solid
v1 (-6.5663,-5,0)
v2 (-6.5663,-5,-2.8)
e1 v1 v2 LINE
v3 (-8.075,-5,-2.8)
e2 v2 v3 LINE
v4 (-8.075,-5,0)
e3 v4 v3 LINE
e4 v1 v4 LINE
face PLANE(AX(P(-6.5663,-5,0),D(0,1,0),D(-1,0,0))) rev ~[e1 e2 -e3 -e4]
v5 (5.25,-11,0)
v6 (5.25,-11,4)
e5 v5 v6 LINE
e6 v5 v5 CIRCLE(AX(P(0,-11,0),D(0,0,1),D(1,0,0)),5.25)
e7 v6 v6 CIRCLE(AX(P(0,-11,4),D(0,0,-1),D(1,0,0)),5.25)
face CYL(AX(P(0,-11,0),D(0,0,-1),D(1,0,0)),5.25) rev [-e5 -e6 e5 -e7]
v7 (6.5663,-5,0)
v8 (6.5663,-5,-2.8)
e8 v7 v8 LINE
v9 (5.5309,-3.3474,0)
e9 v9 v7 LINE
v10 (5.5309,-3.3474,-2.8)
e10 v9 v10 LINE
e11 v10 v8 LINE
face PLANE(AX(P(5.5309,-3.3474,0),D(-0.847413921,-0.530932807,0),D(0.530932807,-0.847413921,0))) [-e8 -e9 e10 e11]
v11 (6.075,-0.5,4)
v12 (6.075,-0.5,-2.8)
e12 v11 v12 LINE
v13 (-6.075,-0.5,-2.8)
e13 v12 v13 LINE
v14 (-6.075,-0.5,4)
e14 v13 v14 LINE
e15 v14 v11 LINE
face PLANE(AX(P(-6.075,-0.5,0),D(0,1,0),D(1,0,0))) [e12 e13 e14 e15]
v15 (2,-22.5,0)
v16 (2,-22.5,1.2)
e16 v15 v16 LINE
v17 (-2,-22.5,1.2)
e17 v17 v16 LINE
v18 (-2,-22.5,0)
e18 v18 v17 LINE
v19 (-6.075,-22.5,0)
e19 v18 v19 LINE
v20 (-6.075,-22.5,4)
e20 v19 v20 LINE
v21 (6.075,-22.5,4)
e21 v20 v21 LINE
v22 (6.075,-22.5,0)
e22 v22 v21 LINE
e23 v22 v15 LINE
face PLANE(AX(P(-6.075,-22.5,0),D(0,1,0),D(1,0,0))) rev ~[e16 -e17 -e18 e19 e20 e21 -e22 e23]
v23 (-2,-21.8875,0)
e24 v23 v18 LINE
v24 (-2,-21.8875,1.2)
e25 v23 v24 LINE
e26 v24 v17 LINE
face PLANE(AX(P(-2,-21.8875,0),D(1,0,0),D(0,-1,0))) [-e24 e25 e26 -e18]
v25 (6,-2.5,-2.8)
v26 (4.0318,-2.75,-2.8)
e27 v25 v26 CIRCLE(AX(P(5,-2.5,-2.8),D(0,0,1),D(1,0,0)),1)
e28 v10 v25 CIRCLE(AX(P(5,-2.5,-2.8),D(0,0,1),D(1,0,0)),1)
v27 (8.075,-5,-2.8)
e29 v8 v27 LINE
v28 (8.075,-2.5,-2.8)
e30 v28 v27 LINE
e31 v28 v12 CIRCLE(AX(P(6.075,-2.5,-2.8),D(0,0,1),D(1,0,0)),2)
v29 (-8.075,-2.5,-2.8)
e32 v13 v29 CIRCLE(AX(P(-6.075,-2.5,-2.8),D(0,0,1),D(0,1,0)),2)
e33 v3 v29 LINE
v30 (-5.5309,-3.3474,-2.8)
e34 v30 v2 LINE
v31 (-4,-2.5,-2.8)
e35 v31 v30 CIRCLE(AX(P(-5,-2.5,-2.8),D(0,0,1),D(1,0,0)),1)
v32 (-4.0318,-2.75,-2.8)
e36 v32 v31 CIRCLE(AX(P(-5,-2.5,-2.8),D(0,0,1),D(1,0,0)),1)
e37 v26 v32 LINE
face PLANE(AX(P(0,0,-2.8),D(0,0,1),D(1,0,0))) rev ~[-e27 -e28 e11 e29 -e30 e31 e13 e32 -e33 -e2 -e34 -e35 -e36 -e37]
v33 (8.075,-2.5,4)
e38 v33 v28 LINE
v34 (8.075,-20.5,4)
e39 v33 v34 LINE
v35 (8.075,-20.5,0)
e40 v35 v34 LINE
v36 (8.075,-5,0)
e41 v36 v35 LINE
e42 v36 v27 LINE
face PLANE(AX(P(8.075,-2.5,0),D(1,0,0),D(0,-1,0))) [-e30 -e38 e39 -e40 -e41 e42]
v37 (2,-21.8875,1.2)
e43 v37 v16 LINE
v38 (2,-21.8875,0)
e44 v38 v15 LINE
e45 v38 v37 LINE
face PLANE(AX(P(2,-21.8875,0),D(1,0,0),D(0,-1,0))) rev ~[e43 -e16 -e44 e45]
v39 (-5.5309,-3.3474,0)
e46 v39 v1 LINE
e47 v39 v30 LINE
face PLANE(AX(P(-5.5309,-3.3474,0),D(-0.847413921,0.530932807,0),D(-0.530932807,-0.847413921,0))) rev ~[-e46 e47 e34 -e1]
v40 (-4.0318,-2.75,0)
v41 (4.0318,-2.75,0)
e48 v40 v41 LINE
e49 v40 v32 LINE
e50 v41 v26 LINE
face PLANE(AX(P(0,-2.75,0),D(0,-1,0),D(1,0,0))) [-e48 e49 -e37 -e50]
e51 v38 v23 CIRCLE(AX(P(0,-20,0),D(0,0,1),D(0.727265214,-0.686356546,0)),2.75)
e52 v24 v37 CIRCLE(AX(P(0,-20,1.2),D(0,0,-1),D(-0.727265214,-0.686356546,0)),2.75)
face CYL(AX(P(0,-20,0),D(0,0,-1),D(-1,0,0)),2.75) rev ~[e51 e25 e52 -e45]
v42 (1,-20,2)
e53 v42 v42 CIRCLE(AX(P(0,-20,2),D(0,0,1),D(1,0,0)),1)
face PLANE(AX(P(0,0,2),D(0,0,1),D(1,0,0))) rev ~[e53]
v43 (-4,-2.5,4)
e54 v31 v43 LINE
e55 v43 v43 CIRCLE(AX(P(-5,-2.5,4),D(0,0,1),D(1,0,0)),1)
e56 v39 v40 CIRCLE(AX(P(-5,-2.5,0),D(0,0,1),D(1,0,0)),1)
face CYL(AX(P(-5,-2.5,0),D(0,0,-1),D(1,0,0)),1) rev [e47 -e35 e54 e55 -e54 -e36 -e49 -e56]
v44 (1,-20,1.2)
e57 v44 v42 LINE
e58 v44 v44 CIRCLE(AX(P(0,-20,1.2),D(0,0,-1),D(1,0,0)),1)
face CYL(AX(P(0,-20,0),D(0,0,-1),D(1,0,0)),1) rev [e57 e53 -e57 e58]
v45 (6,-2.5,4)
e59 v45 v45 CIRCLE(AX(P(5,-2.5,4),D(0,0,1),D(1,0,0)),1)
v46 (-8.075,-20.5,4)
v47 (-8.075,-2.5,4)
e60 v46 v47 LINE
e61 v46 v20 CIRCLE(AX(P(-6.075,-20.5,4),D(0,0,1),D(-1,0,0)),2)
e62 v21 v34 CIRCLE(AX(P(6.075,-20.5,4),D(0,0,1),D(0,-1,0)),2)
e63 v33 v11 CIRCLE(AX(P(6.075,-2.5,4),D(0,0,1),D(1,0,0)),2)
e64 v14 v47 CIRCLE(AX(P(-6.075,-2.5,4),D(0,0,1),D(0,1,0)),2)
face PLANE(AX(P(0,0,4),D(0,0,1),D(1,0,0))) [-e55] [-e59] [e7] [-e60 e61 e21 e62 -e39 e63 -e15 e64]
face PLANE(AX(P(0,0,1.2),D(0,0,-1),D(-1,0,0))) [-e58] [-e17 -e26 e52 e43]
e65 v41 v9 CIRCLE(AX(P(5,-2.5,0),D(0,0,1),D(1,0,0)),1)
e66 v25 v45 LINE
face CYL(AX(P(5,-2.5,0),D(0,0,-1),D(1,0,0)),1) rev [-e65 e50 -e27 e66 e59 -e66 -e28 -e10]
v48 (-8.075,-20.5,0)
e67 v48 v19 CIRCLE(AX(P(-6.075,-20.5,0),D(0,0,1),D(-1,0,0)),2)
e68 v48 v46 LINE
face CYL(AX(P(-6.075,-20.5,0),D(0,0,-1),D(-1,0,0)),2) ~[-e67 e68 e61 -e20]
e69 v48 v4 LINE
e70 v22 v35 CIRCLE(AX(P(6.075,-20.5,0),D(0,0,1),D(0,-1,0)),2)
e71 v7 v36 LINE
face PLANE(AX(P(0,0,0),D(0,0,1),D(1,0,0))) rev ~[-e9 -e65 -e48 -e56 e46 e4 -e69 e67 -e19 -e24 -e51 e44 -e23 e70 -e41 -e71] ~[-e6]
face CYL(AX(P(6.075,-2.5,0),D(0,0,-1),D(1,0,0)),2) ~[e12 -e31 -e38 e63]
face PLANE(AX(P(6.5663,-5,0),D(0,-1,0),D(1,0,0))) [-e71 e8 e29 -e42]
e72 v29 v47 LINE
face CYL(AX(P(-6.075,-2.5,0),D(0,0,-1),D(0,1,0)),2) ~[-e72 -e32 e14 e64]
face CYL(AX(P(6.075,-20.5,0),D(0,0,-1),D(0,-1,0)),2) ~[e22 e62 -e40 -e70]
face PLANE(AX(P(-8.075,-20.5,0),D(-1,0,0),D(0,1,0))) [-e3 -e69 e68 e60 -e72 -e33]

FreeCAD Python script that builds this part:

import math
import FreeCAD as App
import Part
import Sketcher
Q = App.Units.Quantity

doc = App.newDocument("Part")
body = doc.addObject("PartDesign::Body", "Body")

# Sketch on XY plane
sketch1 = body.newObject("Sketcher::SketchObject", "Sketch")
sketch1.AttachmentSupport = (doc.getObject("XY_Plane"), [""])
sketch1.MapMode = "FlatFace"
sketch1.addGeometry(Part.ArcOfCircle(Part.Circle(App.Vector(-6.1, -2.5, 0), App.Vector(0, 0, 1), 2), math.radians(90), math.radians(180)), False)
sketch1.addGeometry(Part.LineSegment(App.Vector(-8.1, -2.5, 0), App.Vector(-8.1, -20.5, 0)), False)
sketch1.addGeometry(Part.ArcOfCircle(Part.Circle(App.Vector(-6.1, -20.5, 0), App.Vector(0, 0, 1), 2), math.radians(180), math.radians(270)), False)
sketch1.addGeometry(Part.LineSegment(App.Vector(-6.1, -22.5, 0), App.Vector(6.1, -22.5, 0)), False)
sketch1.addGeometry(Part.ArcOfCircle(Part.Circle(App.Vector(6.1, -20.5, 0), App.Vector(0, 0, 1), 2), math.radians(-90), math.radians(0)), False)
sketch1.addGeometry(Part.LineSegment(App.Vector(8.1, -20.5, 0), App.Vector(8.1, -2.5, 0)), False)
sketch1.addGeometry(Part.ArcOfCircle(Part.Circle(App.Vector(6.1, -2.5, 0), App.Vector(0, 0, 1), 2), math.radians(0), math.radians(90)), False)
sketch1.addGeometry(Part.LineSegment(App.Vector(6.1, -0.5, 0), App.Vector(-6.1, -0.5, 0)), False)
sketch1.addGeometry(Part.Circle(App.Vector(0, -11, 0), App.Vector(0, 0, 1), 5.2), False)
sketch1.addGeometry(Part.Circle(App.Vector(-5, -2.5, 0), App.Vector(0, 0, 1), 1), False)
sketch1.addGeometry(Part.Circle(App.Vector(5, -2.5, 0), App.Vector(0, 0, 1), 1), False)
sketch1.addGeometry(Part.Circle(App.Vector(0, -20, 0), App.Vector(0, 0, 1), 1), False)
sketch1.addConstraint(Sketcher.Constraint("Tangent", 0, 2, 1, 1))
sketch1.addConstraint(Sketcher.Constraint("Tangent", 1, 2, 2, 1))
sketch1.addConstraint(Sketcher.Constraint("Tangent", 2, 2, 3, 1))
sketch1.addConstraint(Sketcher.Constraint("Tangent", 3, 2, 4, 1))
sketch1.addConstraint(Sketcher.Constraint("Tangent", 4, 2, 5, 1))
sketch1.addConstraint(Sketcher.Constraint("Tangent", 5, 2, 6, 1))
sketch1.addConstraint(Sketcher.Constraint("Tangent", 6, 2, 7, 1))
sketch1.addConstraint(Sketcher.Constraint("Tangent", 7, 2, 0, 1))
sketch1.addConstraint(Sketcher.Constraint("Vertical", 1))
sketch1.addConstraint(Sketcher.Constraint("Horizontal", 3))
sketch1.addConstraint(Sketcher.Constraint("Vertical", 5))
sketch1.addConstraint(Sketcher.Constraint("Horizontal", 7))
sketch1.addConstraint(Sketcher.Constraint("Equal", 0, 2))
sketch1.addConstraint(Sketcher.Constraint("Equal", 2, 4))
sketch1.addConstraint(Sketcher.Constraint("Equal", 4, 6))
sketch1.addConstraint(Sketcher.Constraint("Equal", 9, 10))
sketch1.addConstraint(Sketcher.Constraint("Equal", 10, 11))
sketch1.addConstraint(Sketcher.Constraint("Symmetric", 9, 3, 10, 3, -2))
sketch1.addConstraint(Sketcher.Constraint("PointOnObject", 8, 3, -2))
sketch1.addConstraint(Sketcher.Constraint("PointOnObject", 11, 3, -2))
sketch1.addConstraint(Sketcher.Constraint("Horizontal", 6, 3, 9, 3))
sketch1.addConstraint(Sketcher.Constraint("Radius", 0, Q("2 mm")))
sketch1.addConstraint(Sketcher.Constraint("Diameter", 8, Q("10.5 mm")))
sketch1.addConstraint(Sketcher.Constraint("Diameter", 9, Q("2 mm")))
sketch1.addConstraint(Sketcher.Constraint("DistanceY", 8, 3, 6, 2, Q("10.5 mm")))
sketch1.addConstraint(Sketcher.Constraint("DistanceY", 1, 2, 1, 1, Q("18 mm")))
sketch1.addConstraint(Sketcher.Constraint("DistanceY", 8, 3, -1, 1, Q("11 mm")))
sketch1.addConstraint(Sketcher.Constraint("DistanceX", 9, 3, -1, 1, Q("5 mm")))
sketch1.addConstraint(Sketcher.Constraint("DistanceY", 11, 3, -1, 1, Q("20 mm")))
sketch1.addConstraint(Sketcher.Constraint("DistanceX", 3, 1, 3, 2, Q("12.15 mm")))
sketch1.addConstraint(Sketcher.Constraint("DistanceX", 0, 3, -1, 1, Q("6.075 mm")))
pad1 = body.newObject("PartDesign::Pad", "Pad")
pad1.Profile = sketch1
pad1.Length = 4

# Sketch on XY plane
sketch2 = body.newObject("Sketcher::SketchObject", "Sketch001")
sketch2.AttachmentSupport = (doc.getObject("XY_Plane"), [""])
sketch2.MapMode = "FlatFace"
sketch2.addGeometry(Part.ArcOfCircle(Part.Circle(App.Vector(-6.1, -2.5, 0), App.Vector(0, 0, 1), 2), math.radians(90), math.radians(180)), False)
sketch2.addGeometry(Part.LineSegment(App.Vector(-8.1, -2.5, 0), App.Vector(-8.1, -5, 0)), False)
sketch2.addGeometry(Part.LineSegment(App.Vector(-8.1, -5, 0), App.Vector(-6.6, -5, 0)), False)
sketch2.addGeometry(Part.LineSegment(App.Vector(-6.6, -5, 0), App.Vector(-5.5, -3.3, 0)), False)
sketch2.addGeometry(Part.ArcOfCircle(Part.Circle(App.Vector(-5, -2.5, 0), App.Vector(0, 0, 1), 1), math.radians(-14), math.radians(238)), False)
sketch2.addGeometry(Part.LineSegment(App.Vector(-4, -2.8, 0), App.Vector(4, -2.8, 0)), False)
sketch2.addGeometry(Part.ArcOfCircle(Part.Circle(App.Vector(5, -2.5, 0), App.Vector(0, 0, 1), 1), math.radians(-58), math.radians(194)), False)
sketch2.addGeometry(Part.LineSegment(App.Vector(5.5, -3.3, 0), App.Vector(6.6, -5, 0)), False)
sketch2.addGeometry(Part.LineSegment(App.Vector(6.6, -5, 0), App.Vector(8.1, -5, 0)), False)
sketch2.addGeometry(Part.LineSegment(App.Vector(8.1, -5, 0), App.Vector(8.1, -2.5, 0)), False)
sketch2.addGeometry(Part.ArcOfCircle(Part.Circle(App.Vector(6.1, -2.5, 0), App.Vector(0, 0, 1), 2), math.radians(0), math.radians(90)), False)
sketch2.addGeometry(Part.LineSegment(App.Vector(6.1, -0.5, 0), App.Vector(-6.1, -0.5, 0)), False)
sketch2.addConstraint(Sketcher.Constraint("Tangent", 0, 2, 1, 1))
sketch2.addConstraint(Sketcher.Constraint("Coincident", 1, 2, 2, 1))
sketch2.addConstraint(Sketcher.Constraint("Coincident", 2, 2, 3, 1))
sketch2.addConstraint(Sketcher.Constraint("Coincident", 3, 2, 4, 2))
sketch2.addConstraint(Sketcher.Constraint("Coincident", 4, 1, 5, 1))
sketch2.addConstraint(Sketcher.Constraint("Coincident", 5, 2, 6, 2))
sketch2.addConstraint(Sketcher.Constraint("Coincident", 6, 1, 7, 1))
sketch2.addConstraint(Sketcher.Constraint("Coincident", 7, 2, 8, 1))
sketch2.addConstraint(Sketcher.Constraint("Coincident", 8, 2, 9, 1))
sketch2.addConstraint(Sketcher.Constraint("Tangent", 9, 2, 10, 1))
sketch2.addConstraint(Sketcher.Constraint("Tangent", 10, 2, 11, 1))
sketch2.addConstraint(Sketcher.Constraint("Tangent", 11, 2, 0, 1))
sketch2.addConstraint(Sketcher.Constraint("Vertical", 1))
sketch2.addConstraint(Sketcher.Constraint("Horizontal", 2))
sketch2.addConstraint(Sketcher.Constraint("Horizontal", 5))
sketch2.addConstraint(Sketcher.Constraint("Horizontal", 8))
sketch2.addConstraint(Sketcher.Constraint("Vertical", 9))
sketch2.addConstraint(Sketcher.Constraint("Horizontal", 11))
sketch2.addConstraint(Sketcher.Constraint("Equal", 4, 6))
sketch2.addConstraint(Sketcher.Constraint("Equal", 0, 10))
sketch2.addConstraint(Sketcher.Constraint("Symmetric", 4, 3, 6, 3, -2))
sketch2.addConstraint(Sketcher.Constraint("Symmetric", 2, 2, 7, 2, -2))
sketch2.addConstraint(Sketcher.Constraint("Horizontal", 0, 3, 4, 3))
sketch2.addConstraint(Sketcher.Constraint("Horizontal", 3, 2, 6, 1))
sketch2.addConstraint(Sketcher.Constraint("Equal", 2, 8))
sketch2.addConstraint(Sketcher.Constraint("Radius", 0, Q("2 mm")))
sketch2.addConstraint(Sketcher.Constraint("Radius", 4, Q("1 mm")))
sketch2.addConstraint(Sketcher.Constraint("DistanceY", 10, 2, -1, 1, Q("0.5 mm")))
sketch2.addConstraint(Sketcher.Constraint("DistanceY", 1, 2, 1, 1, Q("2.5 mm")))
sketch2.addConstraint(Sketcher.Constraint("DistanceX", 4, 3, -1, 1, Q("5 mm")))
sketch2.addConstraint(Sketcher.Constraint("DistanceX", 11, 2, 11, 1, Q("12.15 mm")))
sketch2.addConstraint(Sketcher.Constraint("DistanceY", 4, 1, -1, 1, Q("2.75 mm")))
sketch2.addConstraint(Sketcher.Constraint("DistanceX", 2, 1, 2, 2, Q("1.5087 mm")))
sketch2.addConstraint(Sketcher.Constraint("DistanceX", 3, 2, -1, 1, Q("5.531 mm")))
pad2 = body.newObject("PartDesign::Pad", "Pad001")
pad2.Profile = sketch2
pad2.Length = 2.8
pad2.Reversed = True

# Sketch on XY plane
sketch3 = body.newObject("Sketcher::SketchObject", "Sketch002")
sketch3.AttachmentSupport = (doc.getObject("XY_Plane"), [""])
sketch3.MapMode = "FlatFace"
sketch3.addGeometry(Part.LineSegment(App.Vector(-2, -22.5, 0), App.Vector(-2, -21.9, 0)), False)
sketch3.addGeometry(Part.ArcOfCircle(Part.Circle(App.Vector(0, -20, 0), App.Vector(0, 0, 1), 2.8), math.radians(-43), math.radians(223)), False)
sketch3.addGeometry(Part.LineSegment(App.Vector(2, -21.9, 0), App.Vector(2, -22.5, 0)), False)
sketch3.addGeometry(Part.LineSegment(App.Vector(2, -22.5, 0), App.Vector(-2, -22.5, 0)), False)
sketch3.addGeometry(Part.Circle(App.Vector(0, -20, 0), App.Vector(0, 0, 1), 1), False)
sketch3.addConstraint(Sketcher.Constraint("Coincident", 0, 2, 1, 2))
sketch3.addConstraint(Sketcher.Constraint("Coincident", 1, 1, 2, 1))
sketch3.addConstraint(Sketcher.Constraint("Coincident", 2, 2, 3, 1))
sketch3.addConstraint(Sketcher.Constraint("Coincident", 3, 2, 0, 1))
sketch3.addConstraint(Sketcher.Constraint("Vertical", 0))
sketch3.addConstraint(Sketcher.Constraint("Vertical", 2))
sketch3.addConstraint(Sketcher.Constraint("Horizontal", 3))
sketch3.addConstraint(Sketcher.Constraint("Coincident", 4, 3, 1, 3))
sketch3.addConstraint(Sketcher.Constraint("Symmetric", 0, 2, 1, 1, -2))
sketch3.addConstraint(Sketcher.Constraint("DistanceX", 3, 2, 3, 1, Q("4 mm")))
sketch3.addConstraint(Sketcher.Constraint("Radius", 1, Q("2.75 mm")))
sketch3.addConstraint(Sketcher.Constraint("Diameter", 4, Q("2 mm")))
sketch3.addConstraint(Sketcher.Constraint("DistanceY", 1, 3, -1, 1, Q("20 mm")))
sketch3.addConstraint(Sketcher.Constraint("DistanceY", 2, 2, -1, 1, Q("22.5 mm")))
pocket1 = body.newObject("PartDesign::Pocket", "Pocket")
pocket1.Profile = sketch3
pocket1.Length = 1.2
pocket1.Reversed = True

# Sketch on XY plane
sketch4 = body.newObject("Sketcher::SketchObject", "Sketch003")
sketch4.AttachmentSupport = (doc.getObject("XY_Plane"), [""])
sketch4.MapMode = "FlatFace"
sketch4.AttachmentOffset = App.Placement(App.Vector(0, 0, 4), App.Rotation())
sketch4.addGeometry(Part.Circle(App.Vector(0, -20, 0), App.Vector(0, 0, 1), 1), False)
sketch4.addConstraint(Sketcher.Constraint("PointOnObject", 0, 3, -2))
sketch4.addConstraint(Sketcher.Constraint("Diameter", 0, Q("2 mm")))
sketch4.addConstraint(Sketcher.Constraint("DistanceY", 0, 3, -1, 1, Q("20 mm")))
pad3 = body.newObject("PartDesign::Pad", "Pad002")
pad3.Profile = sketch4
pad3.Length = 2
pad3.Reversed = True

doc.recompute()
